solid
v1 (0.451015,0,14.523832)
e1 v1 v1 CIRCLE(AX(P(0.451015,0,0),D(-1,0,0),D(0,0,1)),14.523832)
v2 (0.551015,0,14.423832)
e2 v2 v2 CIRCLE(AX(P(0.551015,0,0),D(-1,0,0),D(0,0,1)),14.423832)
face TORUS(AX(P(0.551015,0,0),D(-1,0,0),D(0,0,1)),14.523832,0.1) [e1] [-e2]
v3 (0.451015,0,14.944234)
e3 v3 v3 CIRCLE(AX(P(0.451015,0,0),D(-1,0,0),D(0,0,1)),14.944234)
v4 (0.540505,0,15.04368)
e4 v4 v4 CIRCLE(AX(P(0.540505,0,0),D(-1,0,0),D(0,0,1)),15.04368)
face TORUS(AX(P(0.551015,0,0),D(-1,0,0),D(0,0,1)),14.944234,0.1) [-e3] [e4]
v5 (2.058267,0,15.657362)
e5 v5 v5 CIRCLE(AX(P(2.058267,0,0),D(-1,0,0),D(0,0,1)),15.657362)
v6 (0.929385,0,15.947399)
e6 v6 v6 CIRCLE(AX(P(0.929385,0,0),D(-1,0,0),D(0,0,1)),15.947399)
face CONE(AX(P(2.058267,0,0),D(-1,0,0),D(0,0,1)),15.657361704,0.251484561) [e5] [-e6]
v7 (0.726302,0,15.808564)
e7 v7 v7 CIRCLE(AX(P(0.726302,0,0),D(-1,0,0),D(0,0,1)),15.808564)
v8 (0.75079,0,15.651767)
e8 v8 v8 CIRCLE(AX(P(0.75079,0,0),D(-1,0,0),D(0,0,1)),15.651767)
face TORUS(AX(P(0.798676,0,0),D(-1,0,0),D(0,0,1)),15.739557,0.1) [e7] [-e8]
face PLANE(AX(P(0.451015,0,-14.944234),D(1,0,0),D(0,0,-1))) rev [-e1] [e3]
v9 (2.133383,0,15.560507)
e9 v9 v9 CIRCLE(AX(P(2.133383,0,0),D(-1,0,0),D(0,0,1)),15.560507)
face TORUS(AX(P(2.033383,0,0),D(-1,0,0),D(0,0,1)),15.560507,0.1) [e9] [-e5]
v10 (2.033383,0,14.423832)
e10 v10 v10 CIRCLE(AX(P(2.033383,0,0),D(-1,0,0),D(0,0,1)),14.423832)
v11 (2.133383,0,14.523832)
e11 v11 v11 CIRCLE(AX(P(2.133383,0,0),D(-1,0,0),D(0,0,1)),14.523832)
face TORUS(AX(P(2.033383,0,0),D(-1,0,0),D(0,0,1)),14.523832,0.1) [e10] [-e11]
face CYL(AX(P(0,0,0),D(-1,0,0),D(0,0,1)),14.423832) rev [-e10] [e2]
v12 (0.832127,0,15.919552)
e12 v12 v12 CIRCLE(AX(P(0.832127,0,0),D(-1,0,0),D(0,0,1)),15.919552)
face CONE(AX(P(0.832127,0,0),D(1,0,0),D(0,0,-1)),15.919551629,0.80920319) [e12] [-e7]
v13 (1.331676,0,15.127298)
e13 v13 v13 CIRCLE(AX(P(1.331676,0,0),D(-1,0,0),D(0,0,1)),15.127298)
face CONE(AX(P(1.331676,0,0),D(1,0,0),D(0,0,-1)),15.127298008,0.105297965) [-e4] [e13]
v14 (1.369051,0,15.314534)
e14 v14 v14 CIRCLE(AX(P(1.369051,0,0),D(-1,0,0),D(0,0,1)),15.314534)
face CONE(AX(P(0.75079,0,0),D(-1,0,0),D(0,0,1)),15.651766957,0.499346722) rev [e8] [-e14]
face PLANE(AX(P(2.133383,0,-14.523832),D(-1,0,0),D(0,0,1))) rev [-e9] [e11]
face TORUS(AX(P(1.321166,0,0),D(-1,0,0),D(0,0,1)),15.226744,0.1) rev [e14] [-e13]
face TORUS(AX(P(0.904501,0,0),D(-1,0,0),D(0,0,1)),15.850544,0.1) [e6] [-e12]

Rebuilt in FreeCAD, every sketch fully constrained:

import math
import FreeCAD as App
import Part
import Sketcher

V = App.Vector
Q = App.Units.Quantity

doc = App.newDocument("Part")
params = doc.addObject("Spreadsheet::Sheet", "Params")
for row, (alias, value) in enumerate([
    ("sketch1_radius", "0.1 mm"),
    ("sketch1_radius2", "0.1 mm"),
    ("sketch1_radius3", "0.1 mm"),
    ("sketch1_radius4", "0.1 mm"),
    ("sketch1_radius5", "0.1 mm"),
    ("revolution_angle", "360 deg"),
], start=1):
    params.set(f"A{row}", alias)
    params.set(f"B{row}", "=" + value)
    params.setAlias(f"B{row}", alias)

body = doc.addObject("PartDesign::Body", "Body")

sketch1 = body.newObject("Sketcher::SketchObject", "Sketch")
sketch1.AttachmentSupport = (doc.getObject("XZ_Plane"), [""])
sketch1.MapMode = "FlatFace"
sketch1.addGeometry(Part.LineSegment(V(0.551015, -14.423832, 0), V(2.033383, -14.423832, 0)), False)
sketch1.addGeometry(Part.ArcOfCircle(Part.Circle(V(2.033383, -14.523832, 0), V(0, 0, 1), 0.1), math.radians(0), math.radians(90)), False)
sketch1.addGeometry(Part.LineSegment(V(2.133383, -14.523832, 0), V(2.133383, -15.560507, 0)), False)
sketch1.addGeometry(Part.ArcOfCircle(Part.Circle(V(2.033383, -15.560507, 0), V(0, 0, 1), 0.1), math.radians(-75.590995), math.radians(-0.000001)), False)
sketch1.addGeometry(Part.LineSegment(V(2.058267, -15.657362, 0), V(0.929385, -15.947399, 0)), False)
sketch1.addGeometry(Part.ArcOfCircle(Part.Circle(V(0.904501, -15.850544, 0), V(0, 0, 1), 0.1), math.radians(-136.363927), math.radians(-75.590997)), False)
sketch1.addGeometry(Part.LineSegment(V(0.832127, -15.919552, 0), V(0.726302, -15.808564, 0)), False)
sketch1.addGeometry(Part.ArcOfCircle(Part.Circle(V(0.798676, -15.739557, 0), V(0, 0, 1), 0.1), math.radians(118.61046), math.radians(223.636072)), False)
sketch1.addGeometry(Part.LineSegment(V(0.75079, -15.651767, 0), V(1.369051, -15.314534, 0)), False)
sketch1.addGeometry(Part.ArcOfCircle(Part.Circle(V(1.321166, -15.226744, 0), V(0, 0, 1), 0.1), math.radians(-61.38954), math.radians(83.96687)), False)
sketch1.addGeometry(Part.LineSegment(V(1.331676, -15.127298, 0), V(0.540505, -15.04368, 0)), False)
sketch1.addGeometry(Part.ArcOfCircle(Part.Circle(V(0.551015, -14.944234, 0), V(0, 0, 1), 0.1), math.radians(179.999998), math.radians(263.966872)), False)
sketch1.addGeometry(Part.LineSegment(V(0.451015, -14.944234, 0), V(0.451015, -14.523832, 0)), False)
sketch1.addGeometry(Part.ArcOfCircle(Part.Circle(V(0.551015, -14.523832, 0), V(0, 0, 1), 0.1), math.radians(90), math.radians(180)), False)
sketch1.addConstraint(Sketcher.Constraint("Coincident", 0, 2, 1, 2))
sketch1.addConstraint(Sketcher.Constraint("Coincident", 1, 1, 2, 1))
sketch1.addConstraint(Sketcher.Constraint("Coincident", 2, 2, 3, 2))
sketch1.addConstraint(Sketcher.Constraint("Coincident", 3, 1, 4, 1))
sketch1.addConstraint(Sketcher.Constraint("Coincident", 4, 2, 5, 2))
sketch1.addConstraint(Sketcher.Constraint("Coincident", 5, 1, 6, 1))
sketch1.addConstraint(Sketcher.Constraint("Coincident", 6, 2, 7, 2))
sketch1.addConstraint(Sketcher.Constraint("Coincident", 7, 1, 8, 1))
sketch1.addConstraint(Sketcher.Constraint("Coincident", 8, 2, 9, 1))
sketch1.addConstraint(Sketcher.Constraint("Coincident", 9, 2, 10, 1))
sketch1.addConstraint(Sketcher.Constraint("Coincident", 10, 2, 11, 2))
sketch1.addConstraint(Sketcher.Constraint("Coincident", 11, 1, 12, 1))
sketch1.addConstraint(Sketcher.Constraint("Coincident", 12, 2, 13, 2))
sketch1.addConstraint(Sketcher.Constraint("Coincident", 13, 1, 0, 1))
sketch1.addConstraint(Sketcher.Constraint("Horizontal", 0))
sketch1.addConstraint(Sketcher.Constraint("Vertical", 2))
sketch1.addConstraint(Sketcher.Constraint("Vertical", 12))
sketch1.addConstraint(Sketcher.Constraint("Radius", 1, Q("0.1 mm")))
sketch1.addConstraint(Sketcher.Constraint("Radius", 3, Q("0.1 mm")))
sketch1.addConstraint(Sketcher.Constraint("Radius", 5, Q("0.1 mm")))
sketch1.addConstraint(Sketcher.Constraint("Radius", 7, Q("0.1 mm")))
sketch1.addConstraint(Sketcher.Constraint("Radius", 9, Q("0.1 mm")))
sketch1.addConstraint(Sketcher.Constraint("Radius", 11, Q("0.1 mm")))
sketch1.addConstraint(Sketcher.Constraint("Radius", 13, Q("0.1 mm")))
sketch1.addConstraint(Sketcher.Constraint("DistanceX", 0, 2, 1, 1, Q("0.1 mm")))
sketch1.addConstraint(Sketcher.Constraint("DistanceY", 1, 1, 0, 2, Q("0.1 mm")))
sketch1.addConstraint(Sketcher.Constraint("DistanceX", 12, 2, 13, 1, Q("0.1 mm")))
sketch1.addConstraint(Sketcher.Constraint("DistanceY", 12, 2, 13, 1, Q("0.1 mm")))
sketch1.addConstraint(Sketcher.Constraint("DistanceY", 12, 1, 12, 2, Q("0.420402 mm")))
sketch1.addConstraint(Sketcher.Constraint("DistanceX", 7, 3, 9, 2, Q("0.533001 mm")))
sketch1.addConstraint(Sketcher.Constraint("DistanceX", -1, 1, 5, 3, Q("0.904501 mm")))
sketch1.addConstraint(Sketcher.Constraint("DistanceY", 4, 2, -1, 1, Q("15.947399 mm")))
sketch1.addConstraint(Sketcher.Constraint("DistanceX", -1, 1, 6, 2, Q("0.726302 mm")))
sketch1.addConstraint(Sketcher.Constraint("DistanceY", 9, 2, -1, 1, Q("15.127298 mm")))
sketch1.addConstraint(Sketcher.Constraint("DistanceY", 5, 3, 9, 3, Q("0.6238 mm")))
sketch1.addConstraint(Sketcher.Constraint("DistanceY", 11, 3, 1, 3, Q("0.420402 mm")))
sketch1.addConstraint(Sketcher.Constraint("DistanceX", 9, 3, 3, 1, Q("0.737101 mm")))
sketch1.addConstraint(Sketcher.Constraint("DistanceX", 0, 1, 0, 2, Q("1.482368 mm")))
sketch1.addConstraint(Sketcher.Constraint("DistanceY", 2, 2, 2, 1, Q("1.036675 mm")))
sketch1.addConstraint(Sketcher.Constraint("DistanceY", 1, 3, -1, 1, Q("14.523832 mm")))
sketch1.addConstraint(Sketcher.Constraint("DistanceY", 3, 1, -1, 1, Q("15.657362 mm")))
sketch1.addConstraint(Sketcher.Constraint("DistanceY", 5, 1, -1, 1, Q("15.919552 mm")))
sketch1.addConstraint(Sketcher.Constraint("DistanceX", -1, 1, 7, 1, Q("0.75079 mm")))
sketch1.addConstraint(Sketcher.Constraint("DistanceX", -1, 1, 8, 2, Q("1.369051 mm")))
sketch1.addConstraint(Sketcher.Constraint("DistanceY", 10, 2, -1, 1, Q("15.04368 mm")))
sketch1.addConstraint(Sketcher.Constraint("DistanceY", 7, 3, 3, 3, Q("0.179049 mm")))
sketch1.addConstraint(Sketcher.Constraint("DistanceX", 7, 3, 9, 3, Q("0.522491 mm")))
sketch1.addConstraint(Sketcher.Constraint("DistanceX", 11, 3, 9, 3, Q("0.770151 mm")))
sketch1.addConstraint(Sketcher.Constraint("DistanceX", 7, 3, 4, 2, Q("0.13071 mm")))
sketch1.setExpression("Constraints[17]", "Params.sketch1_radius")
sketch1.setExpression("Constraints[18]", "Params.sketch1_radius2")
sketch1.setExpression("Constraints[19]", "Params.sketch1_radius3")
sketch1.setExpression("Constraints[20]", "Params.sketch1_radius4")
sketch1.setExpression("Constraints[21]", "Params.sketch1_radius5")
revolution = body.newObject("PartDesign::Revolution", "Revolution")
revolution.Profile = sketch1
revolution.ReferenceAxis = (sketch1, ["H_Axis"])
revolution.setExpression("Angle", "Params.revolution_angle")

doc.recompute()
